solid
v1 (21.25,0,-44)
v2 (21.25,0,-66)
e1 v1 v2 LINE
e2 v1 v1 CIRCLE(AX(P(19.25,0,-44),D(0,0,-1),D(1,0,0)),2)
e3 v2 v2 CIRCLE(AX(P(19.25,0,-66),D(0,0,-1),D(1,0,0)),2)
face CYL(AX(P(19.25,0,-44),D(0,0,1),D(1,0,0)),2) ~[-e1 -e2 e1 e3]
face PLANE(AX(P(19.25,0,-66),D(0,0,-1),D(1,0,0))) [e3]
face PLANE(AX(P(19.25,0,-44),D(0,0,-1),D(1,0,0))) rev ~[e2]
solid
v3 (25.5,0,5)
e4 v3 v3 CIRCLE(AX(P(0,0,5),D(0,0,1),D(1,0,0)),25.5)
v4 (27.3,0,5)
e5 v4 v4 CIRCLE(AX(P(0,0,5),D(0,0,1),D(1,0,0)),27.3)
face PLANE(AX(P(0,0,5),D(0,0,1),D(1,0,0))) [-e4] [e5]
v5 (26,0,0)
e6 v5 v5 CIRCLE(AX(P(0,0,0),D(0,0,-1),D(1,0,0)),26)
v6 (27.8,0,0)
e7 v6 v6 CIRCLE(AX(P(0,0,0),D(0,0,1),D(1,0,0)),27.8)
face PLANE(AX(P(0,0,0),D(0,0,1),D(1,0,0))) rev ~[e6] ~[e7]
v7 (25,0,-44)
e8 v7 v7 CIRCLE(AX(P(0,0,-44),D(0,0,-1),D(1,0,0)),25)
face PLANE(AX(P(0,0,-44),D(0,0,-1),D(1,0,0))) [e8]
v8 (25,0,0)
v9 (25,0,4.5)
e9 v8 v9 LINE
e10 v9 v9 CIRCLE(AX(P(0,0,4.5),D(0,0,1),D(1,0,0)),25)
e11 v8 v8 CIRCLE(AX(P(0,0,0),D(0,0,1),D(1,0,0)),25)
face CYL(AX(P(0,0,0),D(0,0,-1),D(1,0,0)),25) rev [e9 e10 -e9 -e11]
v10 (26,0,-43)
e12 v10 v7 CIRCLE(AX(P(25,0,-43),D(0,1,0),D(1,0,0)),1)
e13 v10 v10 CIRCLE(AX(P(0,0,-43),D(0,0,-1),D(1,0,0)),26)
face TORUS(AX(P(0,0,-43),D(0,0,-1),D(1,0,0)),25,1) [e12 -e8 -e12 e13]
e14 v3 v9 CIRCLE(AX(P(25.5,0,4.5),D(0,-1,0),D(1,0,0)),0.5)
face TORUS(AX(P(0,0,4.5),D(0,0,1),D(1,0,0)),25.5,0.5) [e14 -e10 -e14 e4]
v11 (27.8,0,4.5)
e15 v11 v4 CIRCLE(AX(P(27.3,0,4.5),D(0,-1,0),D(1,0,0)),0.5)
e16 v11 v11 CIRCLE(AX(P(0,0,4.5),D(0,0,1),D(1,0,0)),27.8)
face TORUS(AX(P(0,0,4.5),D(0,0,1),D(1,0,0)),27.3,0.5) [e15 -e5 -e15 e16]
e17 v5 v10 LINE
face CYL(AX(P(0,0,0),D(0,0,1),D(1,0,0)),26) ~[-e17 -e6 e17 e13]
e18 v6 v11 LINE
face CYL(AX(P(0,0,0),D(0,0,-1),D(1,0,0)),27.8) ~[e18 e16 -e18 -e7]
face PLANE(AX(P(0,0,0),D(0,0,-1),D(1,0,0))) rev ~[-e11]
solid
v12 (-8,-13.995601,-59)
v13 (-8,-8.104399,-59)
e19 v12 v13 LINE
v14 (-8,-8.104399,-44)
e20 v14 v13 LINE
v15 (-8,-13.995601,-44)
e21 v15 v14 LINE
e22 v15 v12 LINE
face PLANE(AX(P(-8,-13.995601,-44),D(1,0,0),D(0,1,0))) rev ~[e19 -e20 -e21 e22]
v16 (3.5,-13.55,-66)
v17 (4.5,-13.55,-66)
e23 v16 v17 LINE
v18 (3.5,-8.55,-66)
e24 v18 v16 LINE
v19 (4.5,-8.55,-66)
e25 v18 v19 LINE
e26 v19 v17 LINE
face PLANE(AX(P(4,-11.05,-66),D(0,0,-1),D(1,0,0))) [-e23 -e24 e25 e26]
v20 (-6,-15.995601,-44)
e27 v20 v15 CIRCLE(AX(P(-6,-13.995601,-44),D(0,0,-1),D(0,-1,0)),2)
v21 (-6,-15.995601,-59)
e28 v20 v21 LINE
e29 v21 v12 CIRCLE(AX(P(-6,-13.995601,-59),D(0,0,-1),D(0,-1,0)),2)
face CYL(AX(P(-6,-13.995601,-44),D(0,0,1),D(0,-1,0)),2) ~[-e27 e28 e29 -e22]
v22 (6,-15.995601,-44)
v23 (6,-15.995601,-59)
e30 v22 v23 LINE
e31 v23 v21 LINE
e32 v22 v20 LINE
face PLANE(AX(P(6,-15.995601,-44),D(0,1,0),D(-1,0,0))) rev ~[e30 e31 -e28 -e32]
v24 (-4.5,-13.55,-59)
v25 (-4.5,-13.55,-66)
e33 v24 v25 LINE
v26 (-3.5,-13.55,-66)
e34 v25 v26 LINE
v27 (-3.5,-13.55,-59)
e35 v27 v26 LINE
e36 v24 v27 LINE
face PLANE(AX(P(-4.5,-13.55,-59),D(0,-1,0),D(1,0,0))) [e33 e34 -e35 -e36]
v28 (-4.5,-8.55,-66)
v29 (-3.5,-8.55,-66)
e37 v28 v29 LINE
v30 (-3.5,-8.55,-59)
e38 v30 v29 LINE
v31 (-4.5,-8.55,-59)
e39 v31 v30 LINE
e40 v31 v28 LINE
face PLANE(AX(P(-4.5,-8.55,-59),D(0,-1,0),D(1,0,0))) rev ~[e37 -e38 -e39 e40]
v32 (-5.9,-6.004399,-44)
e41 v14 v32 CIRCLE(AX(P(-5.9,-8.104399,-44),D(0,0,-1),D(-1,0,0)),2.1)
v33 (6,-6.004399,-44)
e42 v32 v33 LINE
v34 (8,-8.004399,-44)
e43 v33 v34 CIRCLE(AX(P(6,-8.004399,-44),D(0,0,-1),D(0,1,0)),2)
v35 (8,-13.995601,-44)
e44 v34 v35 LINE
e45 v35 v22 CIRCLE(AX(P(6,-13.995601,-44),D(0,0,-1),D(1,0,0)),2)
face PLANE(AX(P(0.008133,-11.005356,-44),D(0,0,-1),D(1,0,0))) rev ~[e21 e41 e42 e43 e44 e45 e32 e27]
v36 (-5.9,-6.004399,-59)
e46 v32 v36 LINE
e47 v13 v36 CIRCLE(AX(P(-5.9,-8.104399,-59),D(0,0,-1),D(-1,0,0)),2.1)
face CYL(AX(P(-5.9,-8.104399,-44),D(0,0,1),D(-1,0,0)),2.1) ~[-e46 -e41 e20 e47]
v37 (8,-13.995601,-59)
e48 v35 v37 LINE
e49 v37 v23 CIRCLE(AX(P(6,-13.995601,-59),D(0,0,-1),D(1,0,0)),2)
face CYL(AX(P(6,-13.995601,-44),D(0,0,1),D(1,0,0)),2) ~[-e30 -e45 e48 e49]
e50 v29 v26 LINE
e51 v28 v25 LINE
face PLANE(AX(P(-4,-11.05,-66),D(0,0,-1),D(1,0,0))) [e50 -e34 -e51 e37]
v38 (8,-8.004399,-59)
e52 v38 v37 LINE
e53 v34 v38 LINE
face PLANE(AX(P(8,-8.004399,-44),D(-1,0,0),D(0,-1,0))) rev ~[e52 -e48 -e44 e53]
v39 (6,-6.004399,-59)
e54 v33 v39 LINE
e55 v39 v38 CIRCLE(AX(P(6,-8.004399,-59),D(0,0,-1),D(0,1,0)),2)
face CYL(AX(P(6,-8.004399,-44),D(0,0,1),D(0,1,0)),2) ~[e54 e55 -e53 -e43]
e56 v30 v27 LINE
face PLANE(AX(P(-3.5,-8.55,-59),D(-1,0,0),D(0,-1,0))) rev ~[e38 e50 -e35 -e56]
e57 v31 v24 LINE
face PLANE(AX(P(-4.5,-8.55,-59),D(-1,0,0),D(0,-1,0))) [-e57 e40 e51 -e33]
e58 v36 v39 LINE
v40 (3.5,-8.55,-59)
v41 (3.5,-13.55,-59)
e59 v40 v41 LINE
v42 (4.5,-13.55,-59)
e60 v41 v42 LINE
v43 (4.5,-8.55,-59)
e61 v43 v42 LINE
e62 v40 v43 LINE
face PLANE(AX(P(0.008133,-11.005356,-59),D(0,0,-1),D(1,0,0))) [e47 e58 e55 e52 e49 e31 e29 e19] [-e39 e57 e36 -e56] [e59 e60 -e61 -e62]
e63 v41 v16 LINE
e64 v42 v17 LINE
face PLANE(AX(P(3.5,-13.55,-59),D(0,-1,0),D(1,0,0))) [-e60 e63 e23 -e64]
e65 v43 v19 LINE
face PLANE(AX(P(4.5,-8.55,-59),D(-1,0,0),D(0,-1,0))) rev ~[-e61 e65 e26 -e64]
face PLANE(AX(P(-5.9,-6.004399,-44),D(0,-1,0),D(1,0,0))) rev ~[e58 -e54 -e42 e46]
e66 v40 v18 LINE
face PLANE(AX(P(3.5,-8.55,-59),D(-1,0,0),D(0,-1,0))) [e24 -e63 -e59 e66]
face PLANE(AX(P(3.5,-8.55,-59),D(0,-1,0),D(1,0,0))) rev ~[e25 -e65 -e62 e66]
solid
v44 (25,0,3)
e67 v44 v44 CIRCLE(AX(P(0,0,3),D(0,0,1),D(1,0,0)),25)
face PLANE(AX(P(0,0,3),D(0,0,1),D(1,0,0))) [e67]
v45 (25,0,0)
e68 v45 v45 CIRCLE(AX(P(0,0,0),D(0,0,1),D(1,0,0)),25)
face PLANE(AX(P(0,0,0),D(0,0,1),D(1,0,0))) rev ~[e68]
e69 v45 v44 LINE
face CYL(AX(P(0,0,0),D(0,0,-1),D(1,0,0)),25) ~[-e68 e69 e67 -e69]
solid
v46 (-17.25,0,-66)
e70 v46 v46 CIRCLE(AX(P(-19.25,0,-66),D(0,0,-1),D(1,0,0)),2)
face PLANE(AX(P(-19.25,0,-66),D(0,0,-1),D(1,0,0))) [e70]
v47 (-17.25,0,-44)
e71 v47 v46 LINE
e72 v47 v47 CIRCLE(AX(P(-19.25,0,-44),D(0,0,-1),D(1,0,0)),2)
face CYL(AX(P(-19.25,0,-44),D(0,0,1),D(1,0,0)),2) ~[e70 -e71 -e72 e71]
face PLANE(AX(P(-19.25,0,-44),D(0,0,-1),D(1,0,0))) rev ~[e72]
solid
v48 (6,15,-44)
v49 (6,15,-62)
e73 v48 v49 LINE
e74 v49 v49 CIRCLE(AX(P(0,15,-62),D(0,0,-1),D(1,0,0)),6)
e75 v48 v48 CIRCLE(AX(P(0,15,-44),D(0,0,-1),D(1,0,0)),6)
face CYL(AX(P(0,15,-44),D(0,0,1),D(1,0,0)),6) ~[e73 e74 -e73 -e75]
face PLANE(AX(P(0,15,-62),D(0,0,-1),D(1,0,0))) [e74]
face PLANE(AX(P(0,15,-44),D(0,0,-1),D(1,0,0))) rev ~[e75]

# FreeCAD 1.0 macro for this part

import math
import FreeCAD as App
import Part
import Sketcher

V = App.Vector
Q = App.Units.Quantity


def edges_at(feature, points):
    """Names of the edges that pass closest to the given points."""
    edges = feature.Shape.Edges
    near = lambda p: min(range(len(edges)), key=lambda i: edges[i].distToShape(Part.Vertex(*p))[0])
    return sorted({f"Edge{near(p) + 1}" for p in points})

doc = App.newDocument("Part")
body = doc.addObject("PartDesign::Body", "Body")

# Sketch on XY plane
sketch1 = body.newObject("Sketcher::SketchObject", "Sketch")
sketch1.AttachmentSupport = (doc.getObject("XY_Plane"), [""])
sketch1.MapMode = "FlatFace"
sketch1.addGeometry(Part.Circle(V(0, 0, 0), V(0, 0, 1), 27.8), False)
sketch1.addGeometry(Part.Circle(V(0, 0, 0), V(0, 0, 1), 25), False)
sketch1.addConstraint(Sketcher.Constraint("Coincident", 0, 3, -1, 1))
sketch1.addConstraint(Sketcher.Constraint("Coincident", 1, 3, -1, 1))
sketch1.addConstraint(Sketcher.Constraint("Diameter", 1, Q("50 mm")))
sketch1.addConstraint(Sketcher.Constraint("Diameter", 0, Q("55.6 mm")))
pad1 = body.newObject("PartDesign::Pad", "Pad")
pad1.Profile = sketch1
pad1.Length = 5

# Sketch on XY plane
sketch2 = body.newObject("Sketcher::SketchObject", "Sketch001")
sketch2.AttachmentSupport = (doc.getObject("XY_Plane"), [""])
sketch2.MapMode = "FlatFace"
sketch2.addGeometry(Part.Circle(V(0, 0, 0), V(0, 0, 1), 26), False)
sketch2.addConstraint(Sketcher.Constraint("Coincident", 0, 3, -1, 1))
sketch2.addConstraint(Sketcher.Constraint("Diameter", 0, Q("52 mm")))
pad2 = body.newObject("PartDesign::Pad", "Pad001")
pad2.Profile = sketch2
pad2.Length = 44
pad2.Reversed = True
doc.recompute()

fillet = body.newObject("PartDesign::Fillet", "Fillet")
fillet.Base = (pad2, edges_at(pad2, [(-26, 0, -44)]))
fillet.Radius = 1
doc.recompute()

fillet2 = body.newObject("PartDesign::Fillet", "Fillet001")
fillet2.Base = (fillet, edges_at(fillet, [(-27.8, 0, 5), (-25, 0, 5)]))
fillet2.Radius = 0.5
body2 = doc.addObject("PartDesign::Body", "Body001")

# Sketch on XY plane
sketch3 = body2.newObject("Sketcher::SketchObject", "Sketch002")
sketch3.AttachmentSupport = (doc.getObject("XY_Plane001"), [""])
sketch3.MapMode = "FlatFace"
sketch3.addGeometry(Part.Circle(V(0, 0, 0), V(0, 0, 1), 25), False)
sketch3.addConstraint(Sketcher.Constraint("Coincident", 0, 3, -1, 1))
sketch3.addConstraint(Sketcher.Constraint("Diameter", 0, Q("50 mm")))
pad3 = body2.newObject("PartDesign::Pad", "Pad002")
pad3.Profile = sketch3
pad3.Length = 3
body3 = doc.addObject("PartDesign::Body", "Body002")

# Sketch on XY plane
sketch4 = body3.newObject("Sketcher::SketchObject", "Sketch003")
sketch4.AttachmentSupport = (doc.getObject("XY_Plane002"), [""])
sketch4.MapMode = "FlatFace"
sketch4.AttachmentOffset = App.Placement(V(0, 0, -44), App.Rotation())
sketch4.addGeometry(Part.Circle(V(-19.25, 0, 0), V(0, 0, 1), 2), False)
sketch4.addConstraint(Sketcher.Constraint("PointOnObject", 0, 3, -1))
sketch4.addConstraint(Sketcher.Constraint("Diameter", 0, Q("4 mm")))
sketch4.addConstraint(Sketcher.Constraint("DistanceX", 0, 3, -1, 1, Q("19.25 mm")))
pad4 = body3.newObject("PartDesign::Pad", "Pad003")
pad4.Profile = sketch4
pad4.Length = 22
pad4.Reversed = True
body4 = doc.addObject("PartDesign::Body", "Body003")

# Sketch on XY plane
sketch5 = body4.newObject("Sketcher::SketchObject", "Sketch004")
sketch5.AttachmentSupport = (doc.getObject("XY_Plane003"), [""])
sketch5.MapMode = "FlatFace"
sketch5.AttachmentOffset = App.Placement(V(0, 0, -44), App.Rotation())
sketch5.addGeometry(Part.Circle(V(19.25, 0, 0), V(0, 0, 1), 2), False)
sketch5.addConstraint(Sketcher.Constraint("PointOnObject", 0, 3, -1))
sketch5.addConstraint(Sketcher.Constraint("Diameter", 0, Q("4 mm")))
sketch5.addConstraint(Sketcher.Constraint("DistanceX", -1, 1, 0, 3, Q("19.25 mm")))
pad5 = body4.newObject("PartDesign::Pad", "Pad004")
pad5.Profile = sketch5
pad5.Length = 22
pad5.Reversed = True
body5 = doc.addObject("PartDesign::Body", "Body004")

# Sketch on XY plane
sketch6 = body5.newObject("Sketcher::SketchObject", "Sketch005")
sketch6.AttachmentSupport = (doc.getObject("XY_Plane004"), [""])
sketch6.MapMode = "FlatFace"
sketch6.AttachmentOffset = App.Placement(V(0, 0, -44), App.Rotation())
sketch6.addGeometry(Part.LineSegment(V(-5.9, -6.004399, 0), V(6, -6.004399, 0)), False)
sketch6.addGeometry(Part.ArcOfCircle(Part.Circle(V(6, -8.004399, 0), V(0, 0, 1), 2), math.radians(0), math.radians(90)), False)
sketch6.addGeometry(Part.LineSegment(V(8, -8.004399, 0), V(8, -13.995601, 0)), False)
sketch6.addGeometry(Part.ArcOfCircle(Part.Circle(V(6, -13.995601, 0), V(0, 0, 1), 2), math.radians(-90), math.radians(0)), False)
sketch6.addGeometry(Part.LineSegment(V(6, -15.995601, 0), V(-6, -15.995601, 0)), False)
sketch6.addGeometry(Part.ArcOfCircle(Part.Circle(V(-6, -13.995601, 0), V(0, 0, 1), 2), math.radians(180), math.radians(270)), False)
sketch6.addGeometry(Part.LineSegment(V(-8, -13.995601, 0), V(-8, -8.104399, 0)), False)
sketch6.addGeometry(Part.ArcOfCircle(Part.Circle(V(-5.9, -8.104399, 0), V(0, 0, 1), 2.1), math.radians(90), math.radians(180)), False)
sketch6.addConstraint(Sketcher.Constraint("Tangent", 0, 2, 1, 2))
sketch6.addConstraint(Sketcher.Constraint("Tangent", 1, 1, 2, 1))
sketch6.addConstraint(Sketcher.Constraint("Tangent", 2, 2, 3, 2))
sketch6.addConstraint(Sketcher.Constraint("Tangent", 3, 1, 4, 1))
sketch6.addConstraint(Sketcher.Constraint("Tangent", 4, 2, 5, 2))
sketch6.addConstraint(Sketcher.Constraint("Tangent", 5, 1, 6, 1))
sketch6.addConstraint(Sketcher.Constraint("Tangent", 6, 2, 7, 2))
sketch6.addConstraint(Sketcher.Constraint("Tangent", 7, 1, 0, 1))
sketch6.addConstraint(Sketcher.Constraint("Horizontal", 0))
sketch6.addConstraint(Sketcher.Constraint("Vertical", 2))
sketch6.addConstraint(Sketcher.Constraint("Horizontal", 4))
sketch6.addConstraint(Sketcher.Constraint("Vertical", 6))
sketch6.addConstraint(Sketcher.Constraint("Equal", 1, 3))
sketch6.addConstraint(Sketcher.Constraint("Equal", 3, 5))
sketch6.addConstraint(Sketcher.Constraint("Radius", 1, Q("2 mm")))
sketch6.addConstraint(Sketcher.Constraint("Radius", 7, Q("2.1 mm")))
sketch6.addConstraint(Sketcher.Constraint("DistanceX", 4, 2, 4, 1, Q("12 mm")))
sketch6.addConstraint(Sketcher.Constraint("DistanceX", -1, 1, 1, 3, Q("6 mm")))
sketch6.addConstraint(Sketcher.Constraint("DistanceY", 2, 2, 2, 1, Q("5.991202 mm")))
sketch6.addConstraint(Sketcher.Constraint("DistanceY", 1, 3, -1, 1, Q("8.004399 mm")))
pad6 = body5.newObject("PartDesign::Pad", "Pad005")
pad6.Profile = sketch6
pad6.Length = 15
pad6.Reversed = True

# Sketch on XY plane
sketch7 = body5.newObject("Sketcher::SketchObject", "Sketch006")
sketch7.AttachmentSupport = (doc.getObject("XY_Plane004"), [""])
sketch7.MapMode = "FlatFace"
sketch7.AttachmentOffset = App.Placement(V(0, 0, -59), App.Rotation())
sketch7.addGeometry(Part.LineSegment(V(-4.5, -13.55, 0), V(-4.5, -8.55, 0)), False)
sketch7.addGeometry(Part.LineSegment(V(-4.5, -8.55, 0), V(-3.5, -8.55, 0)), False)
sketch7.addGeometry(Part.LineSegment(V(-3.5, -8.55, 0), V(-3.5, -13.55, 0)), False)
sketch7.addGeometry(Part.LineSegment(V(-3.5, -13.55, 0), V(-4.5, -13.55, 0)), False)
sketch7.addGeometry(Part.LineSegment(V(3.5, -13.55, 0), V(3.5, -8.55, 0)), False)
sketch7.addGeometry(Part.LineSegment(V(3.5, -8.55, 0), V(4.5, -8.55, 0)), False)
sketch7.addGeometry(Part.LineSegment(V(4.5, -8.55, 0), V(4.5, -13.55, 0)), False)
sketch7.addGeometry(Part.LineSegment(V(4.5, -13.55, 0), V(3.5, -13.55, 0)), False)
sketch7.addConstraint(Sketcher.Constraint("Coincident", 0, 2, 1, 1))
sketch7.addConstraint(Sketcher.Constraint("Coincident", 1, 2, 2, 1))
sketch7.addConstraint(Sketcher.Constraint("Coincident", 2, 2, 3, 1))
sketch7.addConstraint(Sketcher.Constraint("Coincident", 3, 2, 0, 1))
sketch7.addConstraint(Sketcher.Constraint("Coincident", 4, 2, 5, 1))
sketch7.addConstraint(Sketcher.Constraint("Coincident", 5, 2, 6, 1))
sketch7.addConstraint(Sketcher.Constraint("Coincident", 6, 2, 7, 1))
sketch7.addConstraint(Sketcher.Constraint("Coincident", 7, 2, 4, 1))
sketch7.addConstraint(Sketcher.Constraint("Vertical", 0))
sketch7.addConstraint(Sketcher.Constraint("Horizontal", 1))
sketch7.addConstraint(Sketcher.Constraint("Vertical", 2))
sketch7.addConstraint(Sketcher.Constraint("Horizontal", 3))
sketch7.addConstraint(Sketcher.Constraint("Vertical", 4))
sketch7.addConstraint(Sketcher.Constraint("Horizontal", 5))
sketch7.addConstraint(Sketcher.Constraint("Vertical", 6))
sketch7.addConstraint(Sketcher.Constraint("Horizontal", 7))
sketch7.addConstraint(Sketcher.Constraint("Symmetric", 1, 2, 4, 2, -2))
sketch7.addConstraint(Sketcher.Constraint("Symmetric", 3, 2, 6, 2, -2))
sketch7.addConstraint(Sketcher.Constraint("DistanceX", 1, 1, 1, 2, Q("1 mm")))
sketch7.addConstraint(Sketcher.Constraint("DistanceY", 0, 1, 0, 2, Q("5 mm")))
sketch7.addConstraint(Sketcher.Constraint("DistanceX", 1, 2, 4, 2, Q("7 mm")))
sketch7.addConstraint(Sketcher.Constraint("DistanceY", 0, 2, -1, 1, Q("8.55 mm")))
pad7 = body5.newObject("PartDesign::Pad", "Pad006")
pad7.Profile = sketch7
pad7.Length = 7
pad7.Reversed = True
body6 = doc.addObject("PartDesign::Body", "Body005")

# Sketch on XY plane
sketch8 = body6.newObject("Sketcher::SketchObject", "Sketch007")
sketch8.AttachmentSupport = (doc.getObject("XY_Plane005"), [""])
sketch8.MapMode = "FlatFace"
sketch8.AttachmentOffset = App.Placement(V(0, 0, -44), App.Rotation())
sketch8.addGeometry(Part.Circle(V(0, 15, 0), V(0, 0, 1), 6), False)
sketch8.addConstraint(Sketcher.Constraint("PointOnObject", 0, 3, -2))
sketch8.addConstraint(Sketcher.Constraint("Diameter", 0, Q("12 mm")))
sketch8.addConstraint(Sketcher.Constraint("DistanceY", -1, 1, 0, 3, Q("15 mm")))
pad8 = body6.newObject("PartDesign::Pad", "Pad007")
pad8.Profile = sketch8
pad8.Length = 18
pad8.Reversed = True

doc.recompute()
